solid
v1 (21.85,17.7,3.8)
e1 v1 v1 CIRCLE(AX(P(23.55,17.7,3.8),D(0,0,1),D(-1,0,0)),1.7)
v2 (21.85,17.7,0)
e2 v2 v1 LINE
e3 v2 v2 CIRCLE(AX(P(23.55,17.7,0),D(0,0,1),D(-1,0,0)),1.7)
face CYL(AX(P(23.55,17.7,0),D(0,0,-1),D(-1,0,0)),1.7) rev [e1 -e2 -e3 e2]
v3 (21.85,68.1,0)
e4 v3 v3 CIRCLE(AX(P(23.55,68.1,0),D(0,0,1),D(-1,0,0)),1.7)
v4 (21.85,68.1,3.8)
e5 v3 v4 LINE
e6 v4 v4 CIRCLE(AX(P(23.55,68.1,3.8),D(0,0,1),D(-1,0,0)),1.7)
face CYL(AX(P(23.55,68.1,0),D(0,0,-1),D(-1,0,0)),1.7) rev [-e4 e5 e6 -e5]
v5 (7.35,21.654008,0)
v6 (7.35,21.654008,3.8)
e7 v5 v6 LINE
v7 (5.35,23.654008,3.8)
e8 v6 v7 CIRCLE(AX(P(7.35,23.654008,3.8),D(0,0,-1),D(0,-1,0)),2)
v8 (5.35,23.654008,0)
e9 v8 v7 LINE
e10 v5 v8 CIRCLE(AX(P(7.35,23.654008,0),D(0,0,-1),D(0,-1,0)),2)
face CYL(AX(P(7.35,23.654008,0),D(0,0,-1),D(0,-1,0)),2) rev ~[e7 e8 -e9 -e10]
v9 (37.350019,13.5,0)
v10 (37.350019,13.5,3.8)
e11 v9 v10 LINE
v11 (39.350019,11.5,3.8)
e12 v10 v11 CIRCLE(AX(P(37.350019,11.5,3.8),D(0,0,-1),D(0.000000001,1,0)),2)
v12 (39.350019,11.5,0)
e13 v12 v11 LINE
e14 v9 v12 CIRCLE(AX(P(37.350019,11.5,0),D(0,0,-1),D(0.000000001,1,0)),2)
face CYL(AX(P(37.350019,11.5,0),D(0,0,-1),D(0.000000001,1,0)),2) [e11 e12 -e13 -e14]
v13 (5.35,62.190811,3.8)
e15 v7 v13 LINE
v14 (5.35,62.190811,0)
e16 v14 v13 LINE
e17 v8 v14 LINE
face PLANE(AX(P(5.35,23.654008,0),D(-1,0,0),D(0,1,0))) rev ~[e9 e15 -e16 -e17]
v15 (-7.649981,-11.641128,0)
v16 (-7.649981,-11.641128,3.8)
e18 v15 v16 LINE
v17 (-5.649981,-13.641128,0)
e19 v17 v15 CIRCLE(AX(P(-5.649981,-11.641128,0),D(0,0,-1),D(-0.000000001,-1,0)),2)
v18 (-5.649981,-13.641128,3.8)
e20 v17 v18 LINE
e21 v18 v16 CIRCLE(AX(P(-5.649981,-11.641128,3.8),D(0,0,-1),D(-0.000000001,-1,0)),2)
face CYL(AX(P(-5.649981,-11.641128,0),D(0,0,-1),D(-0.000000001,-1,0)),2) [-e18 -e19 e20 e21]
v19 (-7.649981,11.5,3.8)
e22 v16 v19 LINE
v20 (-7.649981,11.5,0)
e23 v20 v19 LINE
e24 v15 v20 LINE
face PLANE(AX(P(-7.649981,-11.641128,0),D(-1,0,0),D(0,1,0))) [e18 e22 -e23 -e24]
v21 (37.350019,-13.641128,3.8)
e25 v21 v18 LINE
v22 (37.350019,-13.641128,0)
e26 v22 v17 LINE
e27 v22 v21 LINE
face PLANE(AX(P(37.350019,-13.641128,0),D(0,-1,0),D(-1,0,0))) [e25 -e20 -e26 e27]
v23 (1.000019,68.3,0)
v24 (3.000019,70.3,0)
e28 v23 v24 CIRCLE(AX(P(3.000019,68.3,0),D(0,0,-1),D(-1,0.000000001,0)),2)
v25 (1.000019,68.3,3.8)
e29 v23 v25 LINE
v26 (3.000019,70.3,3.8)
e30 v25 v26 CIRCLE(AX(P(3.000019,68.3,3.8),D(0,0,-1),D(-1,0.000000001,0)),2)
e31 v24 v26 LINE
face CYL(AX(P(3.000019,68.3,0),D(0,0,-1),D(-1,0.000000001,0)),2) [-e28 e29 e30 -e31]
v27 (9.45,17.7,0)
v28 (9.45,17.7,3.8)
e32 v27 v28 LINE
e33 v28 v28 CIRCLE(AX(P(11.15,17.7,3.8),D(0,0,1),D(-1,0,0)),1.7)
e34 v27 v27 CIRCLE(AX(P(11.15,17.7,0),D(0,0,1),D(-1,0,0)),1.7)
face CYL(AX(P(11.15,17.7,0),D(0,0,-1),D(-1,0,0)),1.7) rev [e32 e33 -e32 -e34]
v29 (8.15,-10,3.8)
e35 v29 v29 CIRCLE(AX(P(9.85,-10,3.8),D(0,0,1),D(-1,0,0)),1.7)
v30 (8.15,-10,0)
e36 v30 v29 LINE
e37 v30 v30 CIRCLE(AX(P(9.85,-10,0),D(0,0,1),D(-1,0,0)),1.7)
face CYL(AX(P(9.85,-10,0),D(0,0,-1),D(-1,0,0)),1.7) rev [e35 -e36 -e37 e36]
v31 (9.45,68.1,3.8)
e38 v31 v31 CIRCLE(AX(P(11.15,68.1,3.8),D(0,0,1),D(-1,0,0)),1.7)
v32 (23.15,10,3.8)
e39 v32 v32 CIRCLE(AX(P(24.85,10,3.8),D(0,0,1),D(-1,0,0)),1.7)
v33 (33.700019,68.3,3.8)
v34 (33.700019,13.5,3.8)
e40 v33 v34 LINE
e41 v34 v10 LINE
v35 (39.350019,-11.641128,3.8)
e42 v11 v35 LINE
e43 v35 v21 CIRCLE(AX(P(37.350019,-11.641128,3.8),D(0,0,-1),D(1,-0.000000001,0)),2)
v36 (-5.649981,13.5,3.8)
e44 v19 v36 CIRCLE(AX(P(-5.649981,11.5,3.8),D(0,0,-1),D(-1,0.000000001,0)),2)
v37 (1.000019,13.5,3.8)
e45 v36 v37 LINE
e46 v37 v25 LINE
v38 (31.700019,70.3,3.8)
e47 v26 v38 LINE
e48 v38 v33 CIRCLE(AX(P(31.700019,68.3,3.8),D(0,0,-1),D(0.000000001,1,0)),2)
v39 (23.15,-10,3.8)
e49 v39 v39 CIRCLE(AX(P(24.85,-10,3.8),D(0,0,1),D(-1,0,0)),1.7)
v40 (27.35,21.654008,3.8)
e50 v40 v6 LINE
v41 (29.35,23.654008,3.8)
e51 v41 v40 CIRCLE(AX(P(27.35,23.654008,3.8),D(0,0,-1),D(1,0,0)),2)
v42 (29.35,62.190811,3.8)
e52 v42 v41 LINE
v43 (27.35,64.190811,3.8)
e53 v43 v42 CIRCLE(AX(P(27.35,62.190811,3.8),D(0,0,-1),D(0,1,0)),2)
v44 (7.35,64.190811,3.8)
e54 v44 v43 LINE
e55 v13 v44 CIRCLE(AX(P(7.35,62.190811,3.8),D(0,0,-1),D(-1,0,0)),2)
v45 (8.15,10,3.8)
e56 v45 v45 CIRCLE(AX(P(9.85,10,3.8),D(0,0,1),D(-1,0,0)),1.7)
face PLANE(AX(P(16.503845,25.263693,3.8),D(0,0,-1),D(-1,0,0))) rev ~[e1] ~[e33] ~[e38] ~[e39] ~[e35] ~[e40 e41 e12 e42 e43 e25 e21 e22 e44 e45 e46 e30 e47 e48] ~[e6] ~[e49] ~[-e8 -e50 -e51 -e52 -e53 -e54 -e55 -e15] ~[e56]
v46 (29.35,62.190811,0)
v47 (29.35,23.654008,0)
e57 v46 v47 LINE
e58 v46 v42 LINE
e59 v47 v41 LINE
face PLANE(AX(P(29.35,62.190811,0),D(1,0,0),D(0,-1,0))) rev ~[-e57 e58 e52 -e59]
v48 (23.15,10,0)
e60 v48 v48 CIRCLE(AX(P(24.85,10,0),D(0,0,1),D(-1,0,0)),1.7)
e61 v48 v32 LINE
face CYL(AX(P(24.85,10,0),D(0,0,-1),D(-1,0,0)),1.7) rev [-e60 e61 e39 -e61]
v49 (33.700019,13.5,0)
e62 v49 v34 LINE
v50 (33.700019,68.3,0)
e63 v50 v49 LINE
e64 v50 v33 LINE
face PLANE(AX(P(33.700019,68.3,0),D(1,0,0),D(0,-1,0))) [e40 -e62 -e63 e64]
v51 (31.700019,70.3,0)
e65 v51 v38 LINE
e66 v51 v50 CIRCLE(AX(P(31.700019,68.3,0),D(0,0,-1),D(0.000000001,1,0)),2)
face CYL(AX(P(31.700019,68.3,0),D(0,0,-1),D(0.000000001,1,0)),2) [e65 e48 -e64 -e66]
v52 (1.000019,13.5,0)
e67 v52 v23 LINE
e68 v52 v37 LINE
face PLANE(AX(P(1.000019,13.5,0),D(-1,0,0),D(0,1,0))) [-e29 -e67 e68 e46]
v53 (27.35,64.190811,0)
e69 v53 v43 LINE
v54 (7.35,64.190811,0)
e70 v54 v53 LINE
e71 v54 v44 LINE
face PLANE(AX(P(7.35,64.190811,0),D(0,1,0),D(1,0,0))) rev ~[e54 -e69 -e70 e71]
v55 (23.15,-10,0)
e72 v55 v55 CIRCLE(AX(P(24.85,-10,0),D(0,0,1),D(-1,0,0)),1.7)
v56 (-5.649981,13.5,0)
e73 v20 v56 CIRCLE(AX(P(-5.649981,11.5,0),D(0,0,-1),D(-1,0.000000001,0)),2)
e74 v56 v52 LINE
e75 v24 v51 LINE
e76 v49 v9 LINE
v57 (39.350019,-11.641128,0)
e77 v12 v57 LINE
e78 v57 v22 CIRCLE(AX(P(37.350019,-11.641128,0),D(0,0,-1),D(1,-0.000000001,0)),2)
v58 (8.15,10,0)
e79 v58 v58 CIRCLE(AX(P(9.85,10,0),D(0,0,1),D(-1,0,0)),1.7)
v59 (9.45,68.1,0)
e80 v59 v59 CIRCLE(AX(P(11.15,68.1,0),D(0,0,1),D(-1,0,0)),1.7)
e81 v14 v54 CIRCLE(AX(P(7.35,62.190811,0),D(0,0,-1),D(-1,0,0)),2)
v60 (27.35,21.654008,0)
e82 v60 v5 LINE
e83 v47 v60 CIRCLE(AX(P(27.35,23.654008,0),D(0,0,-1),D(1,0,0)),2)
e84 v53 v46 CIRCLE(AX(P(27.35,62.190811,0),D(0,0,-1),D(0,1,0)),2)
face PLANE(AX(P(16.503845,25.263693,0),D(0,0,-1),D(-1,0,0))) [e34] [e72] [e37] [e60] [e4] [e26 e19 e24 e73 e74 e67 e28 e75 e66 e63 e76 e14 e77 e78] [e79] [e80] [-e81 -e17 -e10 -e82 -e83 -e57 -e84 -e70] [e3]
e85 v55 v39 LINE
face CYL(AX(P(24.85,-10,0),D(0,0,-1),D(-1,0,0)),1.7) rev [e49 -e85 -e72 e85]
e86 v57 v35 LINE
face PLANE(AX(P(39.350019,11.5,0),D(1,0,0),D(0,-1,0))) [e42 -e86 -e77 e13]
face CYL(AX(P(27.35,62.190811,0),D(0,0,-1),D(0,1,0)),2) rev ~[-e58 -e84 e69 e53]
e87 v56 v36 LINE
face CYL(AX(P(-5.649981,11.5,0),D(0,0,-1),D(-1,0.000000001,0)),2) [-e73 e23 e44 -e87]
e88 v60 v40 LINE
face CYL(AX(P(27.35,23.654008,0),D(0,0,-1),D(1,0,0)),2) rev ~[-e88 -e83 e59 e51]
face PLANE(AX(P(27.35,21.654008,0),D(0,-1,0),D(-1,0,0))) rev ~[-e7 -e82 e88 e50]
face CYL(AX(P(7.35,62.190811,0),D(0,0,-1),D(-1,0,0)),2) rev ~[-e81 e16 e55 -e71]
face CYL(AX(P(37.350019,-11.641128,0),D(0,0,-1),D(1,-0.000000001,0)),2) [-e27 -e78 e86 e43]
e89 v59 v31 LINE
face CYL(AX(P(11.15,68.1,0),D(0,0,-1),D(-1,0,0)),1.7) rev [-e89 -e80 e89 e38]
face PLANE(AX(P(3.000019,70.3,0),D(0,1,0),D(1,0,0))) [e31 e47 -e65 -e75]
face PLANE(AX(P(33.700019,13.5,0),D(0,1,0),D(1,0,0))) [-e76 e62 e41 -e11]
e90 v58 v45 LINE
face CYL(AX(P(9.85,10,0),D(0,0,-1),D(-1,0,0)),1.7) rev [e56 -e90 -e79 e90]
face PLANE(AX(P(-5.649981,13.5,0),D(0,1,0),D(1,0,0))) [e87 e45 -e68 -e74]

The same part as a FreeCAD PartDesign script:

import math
import FreeCAD as App
import Part
import Sketcher
Q = App.Units.Quantity

doc = App.newDocument("Part")
body = doc.addObject("PartDesign::Body", "Body")

sketch1 = doc.addObject("Sketcher::SketchObject", "Sketch")
body.addObject(sketch1)
sketch1.AttachmentSupport = (doc.XY_Plane, [""])
sketch1.MapMode = "FlatFace"
sketch1.addGeometry([
    Part.LineSegment(App.Vector(31.7, 70.3, 0), App.Vector(3, 70.3, 0)),
    Part.ArcOfCircle(Part.Circle(App.Vector(3, 68.3, 0), App.Vector(0, 0, 1), 2), math.radians(90), math.radians(180)),
    Part.LineSegment(App.Vector(1, 68.3, 0), App.Vector(1, 13.5, 0)),
    Part.LineSegment(App.Vector(1, 13.5, 0), App.Vector(-5.6, 13.5, 0)),
    Part.ArcOfCircle(Part.Circle(App.Vector(-5.6, 11.5, 0), App.Vector(0, 0, 1), 2), math.radians(90), math.radians(180)),
    Part.LineSegment(App.Vector(-7.6, 11.5, 0), App.Vector(-7.6, -11.6, 0)),
    Part.ArcOfCircle(Part.Circle(App.Vector(-5.6, -11.6, 0), App.Vector(0, 0, 1), 2), math.radians(-180), math.radians(-90)),
    Part.LineSegment(App.Vector(-5.6, -13.6, 0), App.Vector(37.4, -13.6, 0)),
    Part.ArcOfCircle(Part.Circle(App.Vector(37.4, -11.6, 0), App.Vector(0, 0, 1), 2), math.radians(-90), math.radians(0)),
    Part.LineSegment(App.Vector(39.4, -11.6, 0), App.Vector(39.4, 11.5, 0)),
    Part.ArcOfCircle(Part.Circle(App.Vector(37.4, 11.5, 0), App.Vector(0, 0, 1), 2), math.radians(0), math.radians(90)),
    Part.LineSegment(App.Vector(37.4, 13.5, 0), App.Vector(33.7, 13.5, 0)),
    Part.LineSegment(App.Vector(33.7, 13.5, 0), App.Vector(33.7, 68.3, 0)),
    Part.ArcOfCircle(Part.Circle(App.Vector(31.7, 68.3, 0), App.Vector(0, 0, 1), 2), math.radians(0), math.radians(90)),
    Part.Circle(App.Vector(24.9, -10, 0), App.Vector(0, 0, 1), 1.7),
    Part.Circle(App.Vector(24.9, 10, 0), App.Vector(0, 0, 1), 1.7),
    Part.Circle(App.Vector(23.6, 17.7, 0), App.Vector(0, 0, 1), 1.7),
    Part.Circle(App.Vector(9.8, -10, 0), App.Vector(0, 0, 1), 1.7),
    Part.Circle(App.Vector(9.8, 10, 0), App.Vector(0, 0, 1), 1.7),
    Part.Circle(App.Vector(11.2, 17.7, 0), App.Vector(0, 0, 1), 1.7),
    Part.Circle(App.Vector(23.6, 68.1, 0), App.Vector(0, 0, 1), 1.7),
    Part.LineSegment(App.Vector(7.3, 64.2, 0), App.Vector(27.4, 64.2, 0)),
    Part.ArcOfCircle(Part.Circle(App.Vector(27.4, 62.2, 0), App.Vector(0, 0, 1), 2), math.radians(0), math.radians(90)),
    Part.LineSegment(App.Vector(29.4, 62.2, 0), App.Vector(29.4, 23.7, 0)),
    Part.ArcOfCircle(Part.Circle(App.Vector(27.4, 23.7, 0), App.Vector(0, 0, 1), 2), math.radians(-90), math.radians(0)),
    Part.LineSegment(App.Vector(27.4, 21.7, 0), App.Vector(7.3, 21.7, 0)),
    Part.ArcOfCircle(Part.Circle(App.Vector(7.3, 23.7, 0), App.Vector(0, 0, 1), 2), math.radians(180), math.radians(270)),
    Part.LineSegment(App.Vector(5.3, 23.7, 0), App.Vector(5.3, 62.2, 0)),
    Part.ArcOfCircle(Part.Circle(App.Vector(7.3, 62.2, 0), App.Vector(0, 0, 1), 2), math.radians(90), math.radians(180)),
    Part.Circle(App.Vector(11.2, 68.1, 0), App.Vector(0, 0, 1), 1.7),
], False)
sketch1.addConstraint([
    Sketcher.Constraint("Tangent", 0, 2, 1, 1),
    Sketcher.Constraint("Tangent", 1, 2, 2, 1),
    Sketcher.Constraint("Coincident", 2, 2, 3, 1),
    Sketcher.Constraint("Tangent", 3, 2, 4, 1),
    Sketcher.Constraint("Tangent", 4, 2, 5, 1),
    Sketcher.Constraint("Tangent", 5, 2, 6, 1),
    Sketcher.Constraint("Tangent", 6, 2, 7, 1),
    Sketcher.Constraint("Tangent", 7, 2, 8, 1),
    Sketcher.Constraint("Tangent", 8, 2, 9, 1),
    Sketcher.Constraint("Tangent", 9, 2, 10, 1),
    Sketcher.Constraint("Tangent", 10, 2, 11, 1),
    Sketcher.Constraint("Coincident", 11, 2, 12, 1),
    Sketcher.Constraint("Tangent", 12, 2, 13, 1),
    Sketcher.Constraint("Tangent", 13, 2, 0, 1),
    Sketcher.Constraint("Tangent", 21, 2, 22, 2),
    Sketcher.Constraint("Tangent", 22, 1, 23, 1),
    Sketcher.Constraint("Tangent", 23, 2, 24, 2),
    Sketcher.Constraint("Tangent", 24, 1, 25, 1),
    Sketcher.Constraint("Tangent", 25, 2, 26, 2),
    Sketcher.Constraint("Tangent", 26, 1, 27, 1),
    Sketcher.Constraint("Tangent", 27, 2, 28, 2),
    Sketcher.Constraint("Tangent", 28, 1, 21, 1),
    Sketcher.Constraint("Horizontal", 0),
    Sketcher.Constraint("Vertical", 2),
    Sketcher.Constraint("Horizontal", 3),
    Sketcher.Constraint("Vertical", 5),
    Sketcher.Constraint("Horizontal", 7),
    Sketcher.Constraint("Vertical", 9),
    Sketcher.Constraint("Horizontal", 11),
    Sketcher.Constraint("Vertical", 12),
    Sketcher.Constraint("Horizontal", 21),
    Sketcher.Constraint("Vertical", 23),
    Sketcher.Constraint("Horizontal", 25),
    Sketcher.Constraint("Vertical", 27),
    Sketcher.Constraint("Equal", 1, 4),
    Sketcher.Constraint("Equal", 4, 6),
    Sketcher.Constraint("Equal", 6, 8),
    Sketcher.Constraint("Equal", 8, 10),
    Sketcher.Constraint("Equal", 10, 13),
    Sketcher.Constraint("Equal", 14, 15),
    Sketcher.Constraint("Equal", 15, 16),
    Sketcher.Constraint("Equal", 16, 17),
    Sketcher.Constraint("Equal", 17, 18),
    Sketcher.Constraint("Equal", 18, 19),
    Sketcher.Constraint("Equal", 19, 20),
    Sketcher.Constraint("Equal", 13, 22),
    Sketcher.Constraint("Equal", 22, 24),
    Sketcher.Constraint("Equal", 24, 26),
    Sketcher.Constraint("Equal", 26, 28),
    Sketcher.Constraint("Equal", 20, 29),
    Sketcher.Constraint("Symmetric", 14, 3, 15, 3, -1),
    Sketcher.Constraint("Symmetric", 17, 3, 18, 3, -1),
    Sketcher.Constraint("Horizontal", 4, 3, 10, 3),
    Sketcher.Constraint("Horizontal", 14, 3, 17, 3),
    Sketcher.Constraint("Horizontal", 16, 3, 19, 3),
    Sketcher.Constraint("Horizontal", 20, 3, 29, 3),
    Sketcher.Constraint("Vertical", 16, 3, 20, 3),
    Sketcher.Constraint("Vertical", 19, 3, 29, 3),
    Sketcher.Constraint("Radius", 1, Q("2 mm")),
    Sketcher.Constraint("Diameter", 14, Q("3.4 mm")),
    Sketcher.Constraint("DistanceX", 7, 1, 7, 2, Q("43 mm")),
    Sketcher.Constraint("DistanceX", 21, 1, 21, 2, Q("20 mm")),
    Sketcher.Constraint("DistanceX", 0, 2, 0, 1, Q("28.7 mm")),
    Sketcher.Constraint("DistanceY", 2, 2, 2, 1, Q("54.8 mm")),
    Sketcher.Constraint("DistanceY", 14, 3, -1, 1, Q("10 mm")),
    Sketcher.Constraint("DistanceX", 17, 3, 14, 3, Q("15 mm")),
    Sketcher.Constraint("DistanceX", 3, 2, 3, 1, Q("6.65 mm")),
    Sketcher.Constraint("DistanceY", -1, 1, 1, 3, Q("68.3 mm")),
    Sketcher.Constraint("DistanceY", -1, 1, 16, 3, Q("17.7 mm")),
    Sketcher.Constraint("DistanceY", -1, 1, 20, 3, Q("68.1 mm")),
    Sketcher.Constraint("DistanceX", 16, 3, 15, 3, Q("1.3 mm")),
    Sketcher.Constraint("DistanceX", 18, 3, 19, 3, Q("1.3 mm")),
    Sketcher.Constraint("DistanceX", 20, 3, 22, 3, Q("3.8 mm")),
    Sketcher.Constraint("DistanceX", -1, 1, 14, 3, Q("24.85 mm")),
    Sketcher.Constraint("DistanceY", 5, 2, 5, 1, Q("23.141128 mm")),
    Sketcher.Constraint("DistanceY", 23, 2, 23, 1, Q("38.536803 mm")),
    Sketcher.Constraint("DistanceX", -1, 1, 1, 3, Q("3.000019 mm")),
    Sketcher.Constraint("DistanceY", -1, 1, 22, 3, Q("62.190811 mm")),
])
pad1 = doc.addObject("PartDesign::Pad", "Pad")
body.addObject(pad1)
pad1.Profile = sketch1
pad1.Length = 3.8

doc.recompute()
